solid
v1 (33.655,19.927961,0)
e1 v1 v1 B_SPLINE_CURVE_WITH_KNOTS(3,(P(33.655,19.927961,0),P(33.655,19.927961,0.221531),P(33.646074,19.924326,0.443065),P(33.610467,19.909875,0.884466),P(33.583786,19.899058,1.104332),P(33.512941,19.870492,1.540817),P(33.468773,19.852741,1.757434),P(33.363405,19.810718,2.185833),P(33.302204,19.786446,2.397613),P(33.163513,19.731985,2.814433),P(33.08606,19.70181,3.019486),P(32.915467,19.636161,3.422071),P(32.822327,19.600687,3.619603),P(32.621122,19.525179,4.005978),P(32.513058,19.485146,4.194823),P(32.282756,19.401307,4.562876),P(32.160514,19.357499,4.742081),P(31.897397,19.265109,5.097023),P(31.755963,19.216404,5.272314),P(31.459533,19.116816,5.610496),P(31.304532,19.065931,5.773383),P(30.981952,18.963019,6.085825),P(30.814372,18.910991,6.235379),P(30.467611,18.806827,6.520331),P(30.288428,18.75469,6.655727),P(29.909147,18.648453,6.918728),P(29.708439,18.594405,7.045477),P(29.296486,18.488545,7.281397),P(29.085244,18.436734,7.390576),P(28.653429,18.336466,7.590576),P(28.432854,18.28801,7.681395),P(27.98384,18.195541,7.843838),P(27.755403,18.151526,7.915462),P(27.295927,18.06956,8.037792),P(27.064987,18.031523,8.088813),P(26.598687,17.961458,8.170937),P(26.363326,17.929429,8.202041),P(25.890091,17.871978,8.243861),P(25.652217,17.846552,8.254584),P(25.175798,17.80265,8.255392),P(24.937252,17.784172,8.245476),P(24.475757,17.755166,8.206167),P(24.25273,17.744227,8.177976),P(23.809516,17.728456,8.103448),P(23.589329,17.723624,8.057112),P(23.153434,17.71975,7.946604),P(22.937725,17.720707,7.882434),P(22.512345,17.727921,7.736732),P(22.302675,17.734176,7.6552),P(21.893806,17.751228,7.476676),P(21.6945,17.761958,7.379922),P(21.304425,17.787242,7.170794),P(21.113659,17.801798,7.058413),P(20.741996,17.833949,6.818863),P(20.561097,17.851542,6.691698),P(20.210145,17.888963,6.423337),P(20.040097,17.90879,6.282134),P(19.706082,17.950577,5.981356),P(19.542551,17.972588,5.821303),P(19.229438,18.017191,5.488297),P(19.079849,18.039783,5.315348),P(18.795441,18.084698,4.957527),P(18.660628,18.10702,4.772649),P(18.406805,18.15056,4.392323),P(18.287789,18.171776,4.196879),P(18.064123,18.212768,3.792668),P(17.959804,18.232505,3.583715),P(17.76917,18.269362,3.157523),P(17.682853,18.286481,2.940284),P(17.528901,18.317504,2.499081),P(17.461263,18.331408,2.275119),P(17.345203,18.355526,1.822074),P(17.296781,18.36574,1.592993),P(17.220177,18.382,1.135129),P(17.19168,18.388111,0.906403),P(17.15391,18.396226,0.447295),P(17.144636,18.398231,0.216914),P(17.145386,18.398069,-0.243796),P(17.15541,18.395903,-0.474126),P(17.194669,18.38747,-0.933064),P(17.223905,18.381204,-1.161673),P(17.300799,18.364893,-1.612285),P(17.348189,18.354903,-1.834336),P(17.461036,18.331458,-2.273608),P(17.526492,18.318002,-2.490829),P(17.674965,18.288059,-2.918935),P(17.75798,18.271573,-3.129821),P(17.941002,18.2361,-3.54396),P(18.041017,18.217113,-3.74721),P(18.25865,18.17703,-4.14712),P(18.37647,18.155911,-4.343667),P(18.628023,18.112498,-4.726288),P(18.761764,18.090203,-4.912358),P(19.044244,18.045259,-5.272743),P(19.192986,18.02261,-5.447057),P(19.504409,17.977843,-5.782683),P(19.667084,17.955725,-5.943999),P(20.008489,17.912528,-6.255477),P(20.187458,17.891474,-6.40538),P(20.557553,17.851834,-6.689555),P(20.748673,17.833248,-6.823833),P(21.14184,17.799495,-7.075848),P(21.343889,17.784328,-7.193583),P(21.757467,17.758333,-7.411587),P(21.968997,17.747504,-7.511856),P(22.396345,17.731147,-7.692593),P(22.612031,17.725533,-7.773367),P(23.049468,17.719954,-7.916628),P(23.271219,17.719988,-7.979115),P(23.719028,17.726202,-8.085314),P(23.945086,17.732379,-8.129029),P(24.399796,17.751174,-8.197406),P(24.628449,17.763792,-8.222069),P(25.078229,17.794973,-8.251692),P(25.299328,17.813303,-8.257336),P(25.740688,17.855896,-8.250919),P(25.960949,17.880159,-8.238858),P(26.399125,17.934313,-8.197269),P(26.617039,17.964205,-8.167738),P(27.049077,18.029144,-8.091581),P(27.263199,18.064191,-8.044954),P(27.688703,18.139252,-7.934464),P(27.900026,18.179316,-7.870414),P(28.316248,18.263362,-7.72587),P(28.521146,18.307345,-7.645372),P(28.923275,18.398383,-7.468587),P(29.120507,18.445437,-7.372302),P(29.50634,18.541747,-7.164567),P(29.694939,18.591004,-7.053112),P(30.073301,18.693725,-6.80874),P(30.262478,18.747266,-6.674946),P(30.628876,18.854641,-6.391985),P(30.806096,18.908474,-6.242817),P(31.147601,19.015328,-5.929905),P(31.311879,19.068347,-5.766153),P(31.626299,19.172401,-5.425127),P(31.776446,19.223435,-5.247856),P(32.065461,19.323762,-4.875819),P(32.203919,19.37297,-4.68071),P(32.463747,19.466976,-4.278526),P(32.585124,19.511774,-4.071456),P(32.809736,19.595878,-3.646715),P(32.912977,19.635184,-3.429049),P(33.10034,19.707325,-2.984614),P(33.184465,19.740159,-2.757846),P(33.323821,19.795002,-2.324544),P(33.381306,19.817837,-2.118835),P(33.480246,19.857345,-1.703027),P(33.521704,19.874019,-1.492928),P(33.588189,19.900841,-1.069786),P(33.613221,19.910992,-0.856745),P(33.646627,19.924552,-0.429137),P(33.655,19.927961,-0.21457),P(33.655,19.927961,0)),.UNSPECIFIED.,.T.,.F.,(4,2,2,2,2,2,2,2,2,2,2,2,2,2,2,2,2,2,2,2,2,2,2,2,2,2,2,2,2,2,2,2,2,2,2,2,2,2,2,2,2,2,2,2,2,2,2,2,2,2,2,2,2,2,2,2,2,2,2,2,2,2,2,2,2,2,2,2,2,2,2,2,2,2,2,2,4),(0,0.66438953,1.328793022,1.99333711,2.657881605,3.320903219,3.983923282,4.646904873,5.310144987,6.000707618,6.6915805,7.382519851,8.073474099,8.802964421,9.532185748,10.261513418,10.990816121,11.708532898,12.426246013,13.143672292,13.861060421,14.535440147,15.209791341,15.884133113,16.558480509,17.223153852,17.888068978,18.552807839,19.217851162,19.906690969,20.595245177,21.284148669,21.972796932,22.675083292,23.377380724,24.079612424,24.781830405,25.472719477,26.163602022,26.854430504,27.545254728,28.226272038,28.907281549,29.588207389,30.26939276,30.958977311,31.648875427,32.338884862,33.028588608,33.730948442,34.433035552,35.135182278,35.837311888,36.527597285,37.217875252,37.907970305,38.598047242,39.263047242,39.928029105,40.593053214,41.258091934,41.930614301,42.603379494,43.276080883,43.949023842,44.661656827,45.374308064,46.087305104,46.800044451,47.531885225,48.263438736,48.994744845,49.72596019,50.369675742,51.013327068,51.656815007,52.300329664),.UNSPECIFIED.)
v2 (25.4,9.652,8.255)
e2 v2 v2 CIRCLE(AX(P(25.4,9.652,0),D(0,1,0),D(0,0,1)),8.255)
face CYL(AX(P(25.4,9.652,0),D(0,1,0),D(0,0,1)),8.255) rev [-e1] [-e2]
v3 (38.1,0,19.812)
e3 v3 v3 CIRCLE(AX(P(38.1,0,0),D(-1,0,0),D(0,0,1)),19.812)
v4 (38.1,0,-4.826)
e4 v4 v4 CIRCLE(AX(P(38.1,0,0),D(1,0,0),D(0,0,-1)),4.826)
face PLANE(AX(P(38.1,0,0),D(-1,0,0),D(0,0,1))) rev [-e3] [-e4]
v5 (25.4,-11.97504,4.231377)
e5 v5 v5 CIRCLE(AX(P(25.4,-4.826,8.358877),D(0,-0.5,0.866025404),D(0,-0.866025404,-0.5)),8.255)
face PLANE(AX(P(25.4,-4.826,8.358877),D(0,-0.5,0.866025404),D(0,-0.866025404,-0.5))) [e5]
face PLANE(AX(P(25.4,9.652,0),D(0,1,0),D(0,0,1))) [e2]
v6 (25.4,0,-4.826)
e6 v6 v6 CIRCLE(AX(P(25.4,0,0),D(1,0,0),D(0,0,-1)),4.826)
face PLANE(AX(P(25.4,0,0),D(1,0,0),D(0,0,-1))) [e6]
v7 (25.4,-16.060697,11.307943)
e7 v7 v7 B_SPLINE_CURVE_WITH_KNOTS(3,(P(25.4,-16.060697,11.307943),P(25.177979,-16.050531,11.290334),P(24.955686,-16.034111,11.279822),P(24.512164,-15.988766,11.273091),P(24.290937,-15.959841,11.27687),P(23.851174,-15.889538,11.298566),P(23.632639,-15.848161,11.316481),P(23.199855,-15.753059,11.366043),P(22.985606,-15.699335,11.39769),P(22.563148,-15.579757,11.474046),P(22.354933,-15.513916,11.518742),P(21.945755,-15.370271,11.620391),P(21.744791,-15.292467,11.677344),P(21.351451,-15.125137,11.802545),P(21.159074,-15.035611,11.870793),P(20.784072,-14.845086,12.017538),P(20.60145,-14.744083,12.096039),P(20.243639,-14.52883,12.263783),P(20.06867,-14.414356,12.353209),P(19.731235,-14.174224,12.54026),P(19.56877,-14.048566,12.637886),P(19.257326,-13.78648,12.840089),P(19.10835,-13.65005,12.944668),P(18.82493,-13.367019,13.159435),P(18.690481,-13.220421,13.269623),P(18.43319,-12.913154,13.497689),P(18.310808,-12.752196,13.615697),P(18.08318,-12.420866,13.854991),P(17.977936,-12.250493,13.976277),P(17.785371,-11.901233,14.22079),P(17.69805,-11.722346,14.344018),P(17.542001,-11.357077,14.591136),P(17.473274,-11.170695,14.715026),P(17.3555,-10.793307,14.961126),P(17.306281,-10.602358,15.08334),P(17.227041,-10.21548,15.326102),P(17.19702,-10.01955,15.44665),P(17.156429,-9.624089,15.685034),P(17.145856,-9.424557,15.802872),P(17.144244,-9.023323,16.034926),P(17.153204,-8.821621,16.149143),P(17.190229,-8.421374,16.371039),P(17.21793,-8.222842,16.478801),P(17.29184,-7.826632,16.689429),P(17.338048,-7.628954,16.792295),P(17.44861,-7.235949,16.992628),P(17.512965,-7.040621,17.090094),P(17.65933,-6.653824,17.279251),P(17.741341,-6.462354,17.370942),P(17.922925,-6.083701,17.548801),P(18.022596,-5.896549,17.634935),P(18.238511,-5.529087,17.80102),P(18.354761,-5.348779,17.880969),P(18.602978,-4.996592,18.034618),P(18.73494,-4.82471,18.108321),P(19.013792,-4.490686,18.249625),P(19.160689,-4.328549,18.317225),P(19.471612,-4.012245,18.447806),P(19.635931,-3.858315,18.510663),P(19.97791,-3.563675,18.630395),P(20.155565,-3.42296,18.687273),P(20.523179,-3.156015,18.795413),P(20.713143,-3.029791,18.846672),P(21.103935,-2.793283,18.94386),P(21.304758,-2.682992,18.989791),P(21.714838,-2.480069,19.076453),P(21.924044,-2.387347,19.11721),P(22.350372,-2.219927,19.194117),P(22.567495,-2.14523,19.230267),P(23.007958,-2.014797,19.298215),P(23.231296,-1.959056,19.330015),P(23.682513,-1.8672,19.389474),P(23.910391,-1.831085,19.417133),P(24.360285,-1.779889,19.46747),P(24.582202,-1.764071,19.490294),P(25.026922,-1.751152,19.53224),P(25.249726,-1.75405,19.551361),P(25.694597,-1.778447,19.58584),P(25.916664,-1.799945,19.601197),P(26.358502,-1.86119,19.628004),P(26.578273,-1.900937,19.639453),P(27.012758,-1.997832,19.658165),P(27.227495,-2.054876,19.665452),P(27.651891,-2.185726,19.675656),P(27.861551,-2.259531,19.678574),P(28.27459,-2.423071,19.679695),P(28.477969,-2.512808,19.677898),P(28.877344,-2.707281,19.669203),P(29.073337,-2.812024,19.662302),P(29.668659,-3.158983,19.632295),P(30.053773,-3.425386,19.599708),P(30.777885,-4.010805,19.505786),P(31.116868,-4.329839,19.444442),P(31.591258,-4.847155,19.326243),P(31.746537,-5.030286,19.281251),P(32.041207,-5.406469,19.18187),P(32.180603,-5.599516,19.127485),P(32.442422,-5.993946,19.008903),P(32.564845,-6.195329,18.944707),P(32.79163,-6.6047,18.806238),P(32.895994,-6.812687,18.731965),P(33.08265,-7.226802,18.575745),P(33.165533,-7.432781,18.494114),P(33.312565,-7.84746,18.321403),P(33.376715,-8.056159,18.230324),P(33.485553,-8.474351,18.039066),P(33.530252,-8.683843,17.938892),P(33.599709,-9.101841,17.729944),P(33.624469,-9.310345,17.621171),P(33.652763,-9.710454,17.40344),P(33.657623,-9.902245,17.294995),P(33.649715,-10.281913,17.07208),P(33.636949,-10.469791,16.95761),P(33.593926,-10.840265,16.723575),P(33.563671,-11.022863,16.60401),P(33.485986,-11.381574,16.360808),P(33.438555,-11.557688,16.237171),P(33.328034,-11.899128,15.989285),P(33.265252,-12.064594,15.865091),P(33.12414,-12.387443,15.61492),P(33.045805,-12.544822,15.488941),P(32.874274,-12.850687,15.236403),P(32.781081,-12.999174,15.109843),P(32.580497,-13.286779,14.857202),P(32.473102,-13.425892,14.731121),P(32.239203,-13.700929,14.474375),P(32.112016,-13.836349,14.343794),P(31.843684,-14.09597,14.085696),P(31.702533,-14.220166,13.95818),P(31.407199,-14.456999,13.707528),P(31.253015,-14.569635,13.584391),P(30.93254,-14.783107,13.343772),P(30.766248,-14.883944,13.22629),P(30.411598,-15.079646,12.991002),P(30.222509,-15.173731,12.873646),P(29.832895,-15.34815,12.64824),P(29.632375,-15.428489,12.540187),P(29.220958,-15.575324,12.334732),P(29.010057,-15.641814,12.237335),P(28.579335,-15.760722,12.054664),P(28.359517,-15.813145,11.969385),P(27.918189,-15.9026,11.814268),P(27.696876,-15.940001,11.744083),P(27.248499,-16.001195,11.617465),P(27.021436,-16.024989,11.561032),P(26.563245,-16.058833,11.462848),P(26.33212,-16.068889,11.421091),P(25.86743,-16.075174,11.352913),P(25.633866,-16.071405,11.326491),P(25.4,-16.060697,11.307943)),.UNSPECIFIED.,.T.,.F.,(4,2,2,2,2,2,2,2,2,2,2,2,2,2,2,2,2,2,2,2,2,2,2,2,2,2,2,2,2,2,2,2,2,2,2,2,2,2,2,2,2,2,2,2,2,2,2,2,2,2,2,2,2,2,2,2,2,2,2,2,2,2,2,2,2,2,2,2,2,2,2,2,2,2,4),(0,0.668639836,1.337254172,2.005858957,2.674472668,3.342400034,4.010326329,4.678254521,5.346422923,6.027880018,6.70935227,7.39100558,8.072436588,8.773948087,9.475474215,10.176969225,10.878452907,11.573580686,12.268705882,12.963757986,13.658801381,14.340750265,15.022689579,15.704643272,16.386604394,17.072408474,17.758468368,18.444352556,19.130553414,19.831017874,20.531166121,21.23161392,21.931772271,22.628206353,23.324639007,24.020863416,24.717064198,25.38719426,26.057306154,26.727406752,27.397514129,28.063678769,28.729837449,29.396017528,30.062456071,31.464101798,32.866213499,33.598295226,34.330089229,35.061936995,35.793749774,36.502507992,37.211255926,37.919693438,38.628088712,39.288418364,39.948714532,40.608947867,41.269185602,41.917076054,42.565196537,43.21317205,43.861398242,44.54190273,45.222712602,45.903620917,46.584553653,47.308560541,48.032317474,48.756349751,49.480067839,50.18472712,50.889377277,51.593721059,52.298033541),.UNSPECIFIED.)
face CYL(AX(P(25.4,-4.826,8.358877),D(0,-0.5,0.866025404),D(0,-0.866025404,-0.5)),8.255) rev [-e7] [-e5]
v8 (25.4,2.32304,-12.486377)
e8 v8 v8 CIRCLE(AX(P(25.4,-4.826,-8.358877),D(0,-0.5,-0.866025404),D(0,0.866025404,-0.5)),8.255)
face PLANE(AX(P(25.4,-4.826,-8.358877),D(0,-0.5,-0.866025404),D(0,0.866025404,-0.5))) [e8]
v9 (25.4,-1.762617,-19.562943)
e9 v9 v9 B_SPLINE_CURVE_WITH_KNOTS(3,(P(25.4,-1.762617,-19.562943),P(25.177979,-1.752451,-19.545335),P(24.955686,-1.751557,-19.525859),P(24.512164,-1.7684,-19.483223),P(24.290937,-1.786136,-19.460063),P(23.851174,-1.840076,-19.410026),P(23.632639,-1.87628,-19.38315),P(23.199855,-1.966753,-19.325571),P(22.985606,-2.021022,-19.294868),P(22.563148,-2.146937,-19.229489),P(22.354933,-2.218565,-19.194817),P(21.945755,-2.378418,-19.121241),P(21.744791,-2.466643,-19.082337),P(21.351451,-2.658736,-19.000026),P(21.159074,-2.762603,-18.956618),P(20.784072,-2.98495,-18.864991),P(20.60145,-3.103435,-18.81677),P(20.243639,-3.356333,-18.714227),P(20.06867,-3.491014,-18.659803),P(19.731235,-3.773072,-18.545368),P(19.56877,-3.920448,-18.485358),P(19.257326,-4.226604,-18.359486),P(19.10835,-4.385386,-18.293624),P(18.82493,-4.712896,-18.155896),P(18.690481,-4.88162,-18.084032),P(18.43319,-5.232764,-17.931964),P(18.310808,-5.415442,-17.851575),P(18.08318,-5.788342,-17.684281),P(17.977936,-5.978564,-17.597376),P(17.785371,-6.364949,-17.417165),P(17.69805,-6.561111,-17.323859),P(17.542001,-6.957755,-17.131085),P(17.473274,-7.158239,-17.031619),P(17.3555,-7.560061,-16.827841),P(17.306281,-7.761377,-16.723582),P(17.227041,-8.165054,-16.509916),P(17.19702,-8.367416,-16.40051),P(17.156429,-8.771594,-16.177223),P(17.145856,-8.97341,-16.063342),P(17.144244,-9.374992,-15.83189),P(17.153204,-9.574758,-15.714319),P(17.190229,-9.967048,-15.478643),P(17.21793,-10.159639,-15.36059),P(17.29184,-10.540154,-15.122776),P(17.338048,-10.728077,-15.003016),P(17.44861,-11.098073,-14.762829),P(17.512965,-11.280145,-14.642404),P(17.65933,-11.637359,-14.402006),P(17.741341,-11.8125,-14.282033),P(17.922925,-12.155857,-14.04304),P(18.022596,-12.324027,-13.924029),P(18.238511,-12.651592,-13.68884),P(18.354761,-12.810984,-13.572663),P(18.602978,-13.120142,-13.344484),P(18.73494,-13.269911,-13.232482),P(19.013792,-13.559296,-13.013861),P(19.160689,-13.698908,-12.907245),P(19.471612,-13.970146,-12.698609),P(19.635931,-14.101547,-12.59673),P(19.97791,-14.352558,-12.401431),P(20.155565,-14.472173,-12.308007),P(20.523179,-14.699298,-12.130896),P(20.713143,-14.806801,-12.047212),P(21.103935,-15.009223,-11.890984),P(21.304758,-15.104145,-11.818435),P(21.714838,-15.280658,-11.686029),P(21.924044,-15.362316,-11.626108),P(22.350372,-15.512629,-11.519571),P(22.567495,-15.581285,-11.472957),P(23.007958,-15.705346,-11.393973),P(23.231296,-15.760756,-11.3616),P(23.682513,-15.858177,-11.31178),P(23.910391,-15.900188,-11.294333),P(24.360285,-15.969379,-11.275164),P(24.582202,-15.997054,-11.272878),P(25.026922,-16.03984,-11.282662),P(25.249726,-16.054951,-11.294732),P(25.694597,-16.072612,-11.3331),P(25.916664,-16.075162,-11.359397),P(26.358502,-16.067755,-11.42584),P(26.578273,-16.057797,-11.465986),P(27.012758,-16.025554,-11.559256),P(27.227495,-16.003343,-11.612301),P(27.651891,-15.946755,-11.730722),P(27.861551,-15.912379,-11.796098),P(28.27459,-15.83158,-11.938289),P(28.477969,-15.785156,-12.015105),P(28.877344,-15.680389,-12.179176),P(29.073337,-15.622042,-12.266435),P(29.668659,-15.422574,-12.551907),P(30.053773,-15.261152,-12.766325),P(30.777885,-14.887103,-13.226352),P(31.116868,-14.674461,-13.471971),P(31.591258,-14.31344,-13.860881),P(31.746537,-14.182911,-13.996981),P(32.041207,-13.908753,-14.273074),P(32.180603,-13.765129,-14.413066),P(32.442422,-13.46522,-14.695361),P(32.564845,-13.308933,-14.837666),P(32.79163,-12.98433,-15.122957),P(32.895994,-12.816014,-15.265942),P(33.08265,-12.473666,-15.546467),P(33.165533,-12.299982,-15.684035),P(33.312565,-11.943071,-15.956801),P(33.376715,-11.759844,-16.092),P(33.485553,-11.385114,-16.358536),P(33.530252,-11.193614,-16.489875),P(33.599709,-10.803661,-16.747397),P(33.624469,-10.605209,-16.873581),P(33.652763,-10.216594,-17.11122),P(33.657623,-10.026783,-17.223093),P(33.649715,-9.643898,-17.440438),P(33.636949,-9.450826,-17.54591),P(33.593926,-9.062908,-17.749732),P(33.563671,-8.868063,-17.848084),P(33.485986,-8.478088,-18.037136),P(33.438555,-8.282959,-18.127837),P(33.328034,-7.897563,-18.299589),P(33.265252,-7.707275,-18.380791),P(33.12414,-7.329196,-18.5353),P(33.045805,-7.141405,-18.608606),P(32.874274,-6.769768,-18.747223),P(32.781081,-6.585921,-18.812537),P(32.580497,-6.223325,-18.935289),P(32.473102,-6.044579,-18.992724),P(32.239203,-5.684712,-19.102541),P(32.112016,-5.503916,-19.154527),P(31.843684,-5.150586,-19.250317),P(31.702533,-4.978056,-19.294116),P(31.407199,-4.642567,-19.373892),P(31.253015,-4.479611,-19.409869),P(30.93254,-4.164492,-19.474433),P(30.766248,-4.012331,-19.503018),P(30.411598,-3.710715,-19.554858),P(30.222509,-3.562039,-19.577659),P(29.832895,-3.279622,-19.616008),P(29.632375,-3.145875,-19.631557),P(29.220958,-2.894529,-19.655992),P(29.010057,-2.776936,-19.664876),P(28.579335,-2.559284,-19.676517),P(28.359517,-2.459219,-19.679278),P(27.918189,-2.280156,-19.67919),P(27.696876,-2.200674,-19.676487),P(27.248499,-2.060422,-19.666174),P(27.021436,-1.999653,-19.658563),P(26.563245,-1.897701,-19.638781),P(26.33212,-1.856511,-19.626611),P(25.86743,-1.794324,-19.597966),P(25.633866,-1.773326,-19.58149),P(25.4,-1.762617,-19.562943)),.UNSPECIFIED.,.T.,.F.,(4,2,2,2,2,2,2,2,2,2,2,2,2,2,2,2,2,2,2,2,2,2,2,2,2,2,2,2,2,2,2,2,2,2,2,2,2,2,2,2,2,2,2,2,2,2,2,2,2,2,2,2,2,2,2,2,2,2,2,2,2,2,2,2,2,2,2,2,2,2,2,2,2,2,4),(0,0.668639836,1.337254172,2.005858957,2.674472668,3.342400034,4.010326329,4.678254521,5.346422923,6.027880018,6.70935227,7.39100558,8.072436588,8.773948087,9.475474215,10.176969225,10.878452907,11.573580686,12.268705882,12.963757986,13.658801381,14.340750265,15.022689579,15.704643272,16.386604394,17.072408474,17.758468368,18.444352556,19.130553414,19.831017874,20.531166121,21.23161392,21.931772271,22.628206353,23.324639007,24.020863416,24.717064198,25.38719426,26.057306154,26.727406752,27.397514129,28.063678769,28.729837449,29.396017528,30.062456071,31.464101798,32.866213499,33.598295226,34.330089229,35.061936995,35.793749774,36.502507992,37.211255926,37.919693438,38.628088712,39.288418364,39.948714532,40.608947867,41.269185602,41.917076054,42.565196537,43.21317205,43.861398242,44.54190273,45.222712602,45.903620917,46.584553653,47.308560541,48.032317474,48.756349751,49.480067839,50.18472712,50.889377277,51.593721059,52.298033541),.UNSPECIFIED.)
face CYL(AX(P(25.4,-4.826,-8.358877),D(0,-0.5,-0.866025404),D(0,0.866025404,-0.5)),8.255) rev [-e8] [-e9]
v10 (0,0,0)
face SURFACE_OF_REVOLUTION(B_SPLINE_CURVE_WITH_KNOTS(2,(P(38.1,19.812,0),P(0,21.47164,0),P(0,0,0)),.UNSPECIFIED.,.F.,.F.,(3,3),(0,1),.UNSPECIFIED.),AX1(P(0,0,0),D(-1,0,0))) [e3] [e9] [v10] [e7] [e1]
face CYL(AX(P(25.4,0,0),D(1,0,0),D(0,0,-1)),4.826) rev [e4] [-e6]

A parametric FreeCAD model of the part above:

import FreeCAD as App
import Part
import Sketcher

V = App.Vector
Q = App.Units.Quantity

doc = App.newDocument("Part")
body = doc.addObject("PartDesign::Body", "Body")

# Sketch on XY plane
sketch1 = body.newObject("Sketcher::SketchObject", "Sketch")
sketch1.AttachmentSupport = (doc.getObject("XY_Plane"), [""])
sketch1.MapMode = "FlatFace"
sketch1.addGeometry([
    Part.LineSegment(V(0, 0, 0), V(38.1, 0, 0)),
    Part.LineSegment(V(38.1, 0, 0), V(38.1, 19.812, 0)),
    Part.BSplineCurve([V(0, 0, 0), V(0, 21.47164, 0), V(38.1, 19.812, 0)], [3, 3], [0, 1], False, 2, [1, 1, 1], False),
], False)
sketch1.addConstraint([
    Sketcher.Constraint("Block", 2),
    Sketcher.Constraint("Coincident", 0, 2, 1, 1),
    Sketcher.Constraint("Coincident", 1, 2, 2, 2),
    Sketcher.Constraint("Coincident", 2, 1, 0, 1),
    Sketcher.Constraint("Horizontal", 0),
    Sketcher.Constraint("Vertical", 1),
])
revolution = body.newObject("PartDesign::Revolution", "Revolution")
revolution.Profile = sketch1
revolution.ReferenceAxis = (sketch1, ["H_Axis"])
revolution.Angle = 360

# Sketch on YZ plane
sketch2 = body.newObject("Sketcher::SketchObject", "Sketch001")
sketch2.AttachmentSupport = (doc.getObject("YZ_Plane"), [""])
sketch2.MapMode = "FlatFace"
sketch2.AttachmentOffset = App.Placement(V(0, 0, 1.5 * 25.4), App.Rotation())
sketch2.addGeometry(Part.Circle(V(0, 0, 0), V(0, 0, 1), 4.826), False)
sketch2.addConstraint([
    Sketcher.Constraint("Coincident", 0, 3, -1, 1),
    Sketcher.Constraint("Diameter", 0, Q("0.38 in")),
])
pocket1 = body.newObject("PartDesign::Pocket", "Pocket")
pocket1.Profile = sketch2
pocket1.Length = Q("0.5 in")

# Sketch on XZ plane
sketch3 = body.newObject("Sketcher::SketchObject", "Sketch002")
sketch3.AttachmentSupport = (doc.getObject("XZ_Plane"), [""])
sketch3.MapMode = "FlatFace"
sketch3.AttachmentOffset = App.Placement(V(0, 0, -0.78 * 25.4), App.Rotation())
sketch3.addGeometry(Part.Circle(V(25.4, 0, 0), V(0, 0, 1), 8.255), False)
sketch3.addConstraint([
    Sketcher.Constraint("PointOnObject", 0, 3, -1),
    Sketcher.Constraint("Diameter", 0, Q("0.65 in")),
    Sketcher.Constraint("DistanceX", -1, 1, 0, 3, Q("1 in")),
])
pocket2 = body.newObject("PartDesign::Pocket", "Pocket001")
pocket2.Profile = sketch3
pocket2.Length = Q("0.8 in")
pocket2.Midplane = True
doc.recompute()

polarpattern = body.newObject("PartDesign::PolarPattern", "PolarPattern")
polarpattern.Originals = [pocket2]
polarpattern.Axis = (doc.getObject("X_Axis"), [""])
polarpattern.Angle = 360
polarpattern.Occurrences = 3
body.Tip = polarpattern

doc.recompute()
